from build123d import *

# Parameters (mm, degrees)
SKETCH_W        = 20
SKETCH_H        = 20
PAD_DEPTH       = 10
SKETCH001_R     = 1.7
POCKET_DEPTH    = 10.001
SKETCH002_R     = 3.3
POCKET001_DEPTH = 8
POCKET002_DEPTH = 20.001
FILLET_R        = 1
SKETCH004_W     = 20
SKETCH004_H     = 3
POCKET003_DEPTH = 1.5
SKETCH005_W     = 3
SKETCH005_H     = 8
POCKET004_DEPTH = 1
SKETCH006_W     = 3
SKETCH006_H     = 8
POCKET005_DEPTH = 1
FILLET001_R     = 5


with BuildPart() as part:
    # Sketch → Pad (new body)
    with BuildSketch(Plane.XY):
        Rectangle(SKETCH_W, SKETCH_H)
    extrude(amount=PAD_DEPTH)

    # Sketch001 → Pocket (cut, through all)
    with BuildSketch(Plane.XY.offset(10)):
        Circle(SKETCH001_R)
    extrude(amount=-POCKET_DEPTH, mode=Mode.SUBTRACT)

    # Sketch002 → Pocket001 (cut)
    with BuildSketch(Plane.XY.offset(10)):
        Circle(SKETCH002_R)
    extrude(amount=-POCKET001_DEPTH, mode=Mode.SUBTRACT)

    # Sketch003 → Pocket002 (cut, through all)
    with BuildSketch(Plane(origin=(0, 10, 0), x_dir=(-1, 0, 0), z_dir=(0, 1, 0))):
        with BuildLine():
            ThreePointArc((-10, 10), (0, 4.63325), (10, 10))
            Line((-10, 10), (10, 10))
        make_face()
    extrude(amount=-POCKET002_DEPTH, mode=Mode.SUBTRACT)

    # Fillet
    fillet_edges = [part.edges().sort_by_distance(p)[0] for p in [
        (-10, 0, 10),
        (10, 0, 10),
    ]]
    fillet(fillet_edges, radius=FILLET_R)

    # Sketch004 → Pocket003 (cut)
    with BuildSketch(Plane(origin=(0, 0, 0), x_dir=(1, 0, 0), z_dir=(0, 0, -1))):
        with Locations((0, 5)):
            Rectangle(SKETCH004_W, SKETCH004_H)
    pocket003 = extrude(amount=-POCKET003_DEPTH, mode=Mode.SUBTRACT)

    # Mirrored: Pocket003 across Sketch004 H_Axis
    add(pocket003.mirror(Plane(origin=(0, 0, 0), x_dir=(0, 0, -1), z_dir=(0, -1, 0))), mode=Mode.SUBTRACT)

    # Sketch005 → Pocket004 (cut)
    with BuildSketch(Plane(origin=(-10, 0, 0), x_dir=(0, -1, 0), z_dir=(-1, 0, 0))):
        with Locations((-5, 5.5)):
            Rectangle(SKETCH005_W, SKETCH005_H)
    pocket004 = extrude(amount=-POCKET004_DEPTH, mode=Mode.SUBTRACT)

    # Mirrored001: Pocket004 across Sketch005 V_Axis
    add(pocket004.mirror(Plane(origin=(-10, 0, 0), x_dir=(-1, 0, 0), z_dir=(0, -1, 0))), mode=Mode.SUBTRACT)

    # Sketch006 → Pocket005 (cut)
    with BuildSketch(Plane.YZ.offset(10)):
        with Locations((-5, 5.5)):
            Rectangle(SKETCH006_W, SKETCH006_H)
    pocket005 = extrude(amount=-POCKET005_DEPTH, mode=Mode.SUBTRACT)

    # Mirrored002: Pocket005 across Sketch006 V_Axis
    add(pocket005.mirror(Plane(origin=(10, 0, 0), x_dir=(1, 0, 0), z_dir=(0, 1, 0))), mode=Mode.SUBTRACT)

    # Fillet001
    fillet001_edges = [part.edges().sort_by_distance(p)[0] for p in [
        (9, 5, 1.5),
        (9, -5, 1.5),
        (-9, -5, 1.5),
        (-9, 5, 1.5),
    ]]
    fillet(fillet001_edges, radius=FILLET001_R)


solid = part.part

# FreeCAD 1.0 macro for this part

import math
import FreeCAD as App
import Part
import Sketcher


def edges_at(feature, points):
    """Names of the edges that pass closest to the given points."""
    edges = feature.Shape.Edges
    near = lambda p: min(range(len(edges)), key=lambda i: edges[i].distToShape(Part.Vertex(*p))[0])
    return sorted({f"Edge{near(p) + 1}" for p in points})

doc = App.newDocument("Part")
body = doc.addObject("PartDesign::Body", "Body")

sketch1 = doc.addObject("Sketcher::SketchObject", "Sketch")
body.addObject(sketch1)
sketch1.AttachmentSupport = (doc.XY_Plane, [""])
sketch1.MapMode = "FlatFace"
sketch1.addGeometry(Part.LineSegment(App.Vector(-10, 10, 0), App.Vector(-10, -10, 0)), False)
sketch1.addGeometry(Part.LineSegment(App.Vector(-10, -10, 0), App.Vector(10, -10, 0)), False)
sketch1.addGeometry(Part.LineSegment(App.Vector(10, -10, 0), App.Vector(10, 10, 0)), False)
sketch1.addGeometry(Part.LineSegment(App.Vector(10, 10, 0), App.Vector(-10, 10, 0)), False)
sketch1.addConstraint(Sketcher.Constraint("Coincident", 0, 2, 1, 1))
sketch1.addConstraint(Sketcher.Constraint("Coincident", 1, 2, 2, 1))
sketch1.addConstraint(Sketcher.Constraint("Coincident", 2, 2, 3, 1))
sketch1.addConstraint(Sketcher.Constraint("Coincident", 3, 2, 0, 1))
sketch1.addConstraint(Sketcher.Constraint("Vertical", 0))
sketch1.addConstraint(Sketcher.Constraint("Horizontal", 1))
sketch1.addConstraint(Sketcher.Constraint("Vertical", 2))
sketch1.addConstraint(Sketcher.Constraint("Horizontal", 3))
sketch1.addConstraint(Sketcher.Constraint("Symmetric", 0, 2, 2, 2, -1, 1))
sketch1.addConstraint(Sketcher.Constraint("Equal", 3, 0))
sketch1.addConstraint(Sketcher.Constraint("DistanceX", 1, 1, 1, 2, 20.0))
pad1 = doc.addObject("PartDesign::Pad", "Pad")
body.addObject(pad1)
pad1.Profile = sketch1
pad1.Length = 10

sketch2 = doc.addObject("Sketcher::SketchObject", "Sketch001")
body.addObject(sketch2)
sketch2.AttachmentSupport = (doc.XY_Plane, [""])
sketch2.MapMode = "FlatFace"
sketch2.AttachmentOffset = App.Placement(App.Vector(0, 0, 10), App.Rotation())
sketch2.addGeometry(Part.Circle(App.Vector(0, 0, 0), App.Vector(0, 0, 1), 1.7), False)
sketch2.addConstraint(Sketcher.Constraint("Coincident", 0, 3, -1, 1))
sketch2.addConstraint(Sketcher.Constraint("Diameter", 0, 3.4))
pocket1 = doc.addObject("PartDesign::Pocket", "Pocket")
body.addObject(pocket1)
pocket1.Profile = sketch2
pocket1.Type = "ThroughAll"

sketch3 = doc.addObject("Sketcher::SketchObject", "Sketch002")
body.addObject(sketch3)
sketch3.AttachmentSupport = (doc.XY_Plane, [""])
sketch3.MapMode = "FlatFace"
sketch3.AttachmentOffset = App.Placement(App.Vector(0, 0, 10), App.Rotation())
sketch3.addGeometry(Part.Circle(App.Vector(0, 0, 0), App.Vector(0, 0, 1), 3.3), False)
sketch3.addConstraint(Sketcher.Constraint("Coincident", 0, 3, -1, 1))
sketch3.addConstraint(Sketcher.Constraint("Diameter", 0, 6.6))
pocket2 = doc.addObject("PartDesign::Pocket", "Pocket001")
body.addObject(pocket2)
pocket2.Profile = sketch3
pocket2.Length = 8

sketch4 = doc.addObject("Sketcher::SketchObject", "Sketch003")
body.addObject(sketch4)
sketch4.AttachmentSupport = (doc.XZ_Plane, [""])
sketch4.MapMode = "FlatFace"
sketch4.AttachmentOffset = App.Placement(App.Vector(0, 0, -10), App.Rotation())
sketch4.addGeometry(Part.ArcOfCircle(Part.Circle(App.Vector(0, 17, 0), App.Vector(0, 0, 1), 12), math.radians(-146), math.radians(-34)), False)
sketch4.addGeometry(Part.LineSegment(App.Vector(-10, 10, 0), App.Vector(10, 10, 0)), False)
sketch4.addConstraint(Sketcher.Constraint("Coincident", 0, 1, 1, 1))
sketch4.addConstraint(Sketcher.Constraint("Coincident", 1, 2, 0, 2))
sketch4.addConstraint(Sketcher.Constraint("Horizontal", 1))
sketch4.addConstraint(Sketcher.Constraint("PointOnObject", 0, 3, -2))
sketch4.addConstraint(Sketcher.Constraint("Radius", 0, 12.000001))
sketch4.addConstraint(Sketcher.Constraint("DistanceX", 1, 1, 1, 2, 20.0))
sketch4.addConstraint(Sketcher.Constraint("DistanceY", -1, 1, 0, 1, 10.0))
pocket3 = doc.addObject("PartDesign::Pocket", "Pocket002")
body.addObject(pocket3)
pocket3.Profile = sketch4
pocket3.Type = "ThroughAll"
pocket3.Reversed = True
doc.recompute()

fillet = doc.addObject("PartDesign::Fillet", "Fillet")
body.addObject(fillet)
fillet.Base = (pocket3, edges_at(pocket3, [(-10, 0, 10), (10, 0, 10)]))
fillet.Radius = 1

sketch5 = doc.addObject("Sketcher::SketchObject", "Sketch004")
body.addObject(sketch5)
sketch5.AttachmentSupport = (doc.XY_Plane, [""])
sketch5.MapMode = "FlatFace"
sketch5.addGeometry(Part.LineSegment(App.Vector(-10, -6.5, 0), App.Vector(-10, -3.5, 0)), False)
sketch5.addGeometry(Part.LineSegment(App.Vector(-10, -3.5, 0), App.Vector(10, -3.5, 0)), False)
sketch5.addGeometry(Part.LineSegment(App.Vector(10, -3.5, 0), App.Vector(10, -6.5, 0)), False)
sketch5.addGeometry(Part.LineSegment(App.Vector(10, -6.5, 0), App.Vector(-10, -6.5, 0)), False)
sketch5.addConstraint(Sketcher.Constraint("Coincident", 0, 2, 1, 1))
sketch5.addConstraint(Sketcher.Constraint("Coincident", 1, 2, 2, 1))
sketch5.addConstraint(Sketcher.Constraint("Coincident", 2, 2, 3, 1))
sketch5.addConstraint(Sketcher.Constraint("Coincident", 3, 2, 0, 1))
sketch5.addConstraint(Sketcher.Constraint("Vertical", 0))
sketch5.addConstraint(Sketcher.Constraint("Horizontal", 1))
sketch5.addConstraint(Sketcher.Constraint("Vertical", 2))
sketch5.addConstraint(Sketcher.Constraint("Horizontal", 3))
sketch5.addConstraint(Sketcher.Constraint("DistanceX", 1, 1, 1, 2, 20.0))
sketch5.addConstraint(Sketcher.Constraint("DistanceY", 0, 1, 0, 2, 3.0))
sketch5.addConstraint(Sketcher.Constraint("DistanceX", 0, 2, -1, 1, 10.0))
sketch5.addConstraint(Sketcher.Constraint("DistanceY", 0, 2, -1, 1, 3.5))
pocket4 = doc.addObject("PartDesign::Pocket", "Pocket003")
body.addObject(pocket4)
pocket4.Profile = sketch5
pocket4.Length = 1.5
pocket4.Reversed = True
doc.recompute()

mirrored = doc.addObject("PartDesign::Mirrored", "Mirrored")
body.addObject(mirrored)
mirrored.Originals = [pocket4]
mirrored.MirrorPlane = (doc.XZ_Plane, [""])
body.Tip = mirrored

sketch6 = doc.addObject("Sketcher::SketchObject", "Sketch005")
body.addObject(sketch6)
sketch6.AttachmentSupport = (doc.YZ_Plane, [""])
sketch6.MapMode = "FlatFace"
sketch6.AttachmentOffset = App.Placement(App.Vector(0, 0, -10), App.Rotation())
sketch6.addGeometry(Part.LineSegment(App.Vector(6.5, 9.5, 0), App.Vector(6.5, 1.5, 0)), False)
sketch6.addGeometry(Part.LineSegment(App.Vector(6.5, 1.5, 0), App.Vector(3.5, 1.5, 0)), False)
sketch6.addGeometry(Part.LineSegment(App.Vector(3.5, 1.5, 0), App.Vector(3.5, 9.5, 0)), False)
sketch6.addGeometry(Part.LineSegment(App.Vector(3.5, 9.5, 0), App.Vector(6.5, 9.5, 0)), False)
sketch6.addConstraint(Sketcher.Constraint("Coincident", 0, 2, 1, 1))
sketch6.addConstraint(Sketcher.Constraint("Coincident", 1, 2, 2, 1))
sketch6.addConstraint(Sketcher.Constraint("Coincident", 2, 2, 3, 1))
sketch6.addConstraint(Sketcher.Constraint("Coincident", 3, 2, 0, 1))
sketch6.addConstraint(Sketcher.Constraint("Vertical", 0))
sketch6.addConstraint(Sketcher.Constraint("Horizontal", 1))
sketch6.addConstraint(Sketcher.Constraint("Vertical", 2))
sketch6.addConstraint(Sketcher.Constraint("Horizontal", 3))
sketch6.addConstraint(Sketcher.Constraint("DistanceX", 1, 2, 1, 1, 3.0))
sketch6.addConstraint(Sketcher.Constraint("DistanceY", 0, 2, 0, 1, 8.0))
sketch6.addConstraint(Sketcher.Constraint("DistanceX", -1, 1, 0, 2, 6.5))
sketch6.addConstraint(Sketcher.Constraint("DistanceY", -1, 1, 0, 2, 1.5))
pocket5 = doc.addObject("PartDesign::Pocket", "Pocket004")
body.addObject(pocket5)
pocket5.Profile = sketch6
pocket5.Length = 1
pocket5.Reversed = True
doc.recompute()

mirrored2 = doc.addObject("PartDesign::Mirrored", "Mirrored001")
body.addObject(mirrored2)
mirrored2.Originals = [pocket5]
mirrored2.MirrorPlane = (doc.XZ_Plane, [""])
body.Tip = mirrored2

sketch7 = doc.addObject("Sketcher::SketchObject", "Sketch006")
body.addObject(sketch7)
sketch7.AttachmentSupport = (doc.YZ_Plane, [""])
sketch7.MapMode = "FlatFace"
sketch7.AttachmentOffset = App.Placement(App.Vector(0, 0, 10), App.Rotation())
sketch7.addGeometry(Part.LineSegment(App.Vector(-6.5, 9.5, 0), App.Vector(-6.5, 1.5, 0)), False)
sketch7.addGeometry(Part.LineSegment(App.Vector(-6.5, 1.5, 0), App.Vector(-3.5, 1.5, 0)), False)
sketch7.addGeometry(Part.LineSegment(App.Vector(-3.5, 1.5, 0), App.Vector(-3.5, 9.5, 0)), False)
sketch7.addGeometry(Part.LineSegment(App.Vector(-3.5, 9.5, 0), App.Vector(-6.5, 9.5, 0)), False)
sketch7.addConstraint(Sketcher.Constraint("Coincident", 0, 2, 1, 1))
sketch7.addConstraint(Sketcher.Constraint("Coincident", 1, 2, 2, 1))
sketch7.addConstraint(Sketcher.Constraint("Coincident", 2, 2, 3, 1))
sketch7.addConstraint(Sketcher.Constraint("Coincident", 3, 2, 0, 1))
sketch7.addConstraint(Sketcher.Constraint("Vertical", 0))
sketch7.addConstraint(Sketcher.Constraint("Horizontal", 1))
sketch7.addConstraint(Sketcher.Constraint("Vertical", 2))
sketch7.addConstraint(Sketcher.Constraint("Horizontal", 3))
sketch7.addConstraint(Sketcher.Constraint("DistanceX", 1, 1, 1, 2, 3.0))
sketch7.addConstraint(Sketcher.Constraint("DistanceY", 0, 2, 0, 1, 8.0))
sketch7.addConstraint(Sketcher.Constraint("DistanceX", 0, 2, -1, 1, 6.5))
sketch7.addConstraint(Sketcher.Constraint("DistanceY", -1, 1, 0, 2, 1.5))
pocket6 = doc.addObject("PartDesign::Pocket", "Pocket005")
body.addObject(pocket6)
pocket6.Profile = sketch7
pocket6.Length = 1
doc.recompute()

mirrored3 = doc.addObject("PartDesign::Mirrored", "Mirrored002")
body.addObject(mirrored3)
mirrored3.Originals = [pocket6]
mirrored3.MirrorPlane = (doc.XZ_Plane, [""])
body.Tip = mirrored3
doc.recompute()

fillet2 = doc.addObject("PartDesign::Fillet", "Fillet001")
body.addObject(fillet2)
fillet2.Base = (mirrored3, edges_at(mirrored3, [
    (9, 5, 1.5),
    (9, -5, 1.5),
    (-9, -5, 1.5),
    (-9, 5, 1.5),
]))
fillet2.Radius = 5

doc.recompute()
